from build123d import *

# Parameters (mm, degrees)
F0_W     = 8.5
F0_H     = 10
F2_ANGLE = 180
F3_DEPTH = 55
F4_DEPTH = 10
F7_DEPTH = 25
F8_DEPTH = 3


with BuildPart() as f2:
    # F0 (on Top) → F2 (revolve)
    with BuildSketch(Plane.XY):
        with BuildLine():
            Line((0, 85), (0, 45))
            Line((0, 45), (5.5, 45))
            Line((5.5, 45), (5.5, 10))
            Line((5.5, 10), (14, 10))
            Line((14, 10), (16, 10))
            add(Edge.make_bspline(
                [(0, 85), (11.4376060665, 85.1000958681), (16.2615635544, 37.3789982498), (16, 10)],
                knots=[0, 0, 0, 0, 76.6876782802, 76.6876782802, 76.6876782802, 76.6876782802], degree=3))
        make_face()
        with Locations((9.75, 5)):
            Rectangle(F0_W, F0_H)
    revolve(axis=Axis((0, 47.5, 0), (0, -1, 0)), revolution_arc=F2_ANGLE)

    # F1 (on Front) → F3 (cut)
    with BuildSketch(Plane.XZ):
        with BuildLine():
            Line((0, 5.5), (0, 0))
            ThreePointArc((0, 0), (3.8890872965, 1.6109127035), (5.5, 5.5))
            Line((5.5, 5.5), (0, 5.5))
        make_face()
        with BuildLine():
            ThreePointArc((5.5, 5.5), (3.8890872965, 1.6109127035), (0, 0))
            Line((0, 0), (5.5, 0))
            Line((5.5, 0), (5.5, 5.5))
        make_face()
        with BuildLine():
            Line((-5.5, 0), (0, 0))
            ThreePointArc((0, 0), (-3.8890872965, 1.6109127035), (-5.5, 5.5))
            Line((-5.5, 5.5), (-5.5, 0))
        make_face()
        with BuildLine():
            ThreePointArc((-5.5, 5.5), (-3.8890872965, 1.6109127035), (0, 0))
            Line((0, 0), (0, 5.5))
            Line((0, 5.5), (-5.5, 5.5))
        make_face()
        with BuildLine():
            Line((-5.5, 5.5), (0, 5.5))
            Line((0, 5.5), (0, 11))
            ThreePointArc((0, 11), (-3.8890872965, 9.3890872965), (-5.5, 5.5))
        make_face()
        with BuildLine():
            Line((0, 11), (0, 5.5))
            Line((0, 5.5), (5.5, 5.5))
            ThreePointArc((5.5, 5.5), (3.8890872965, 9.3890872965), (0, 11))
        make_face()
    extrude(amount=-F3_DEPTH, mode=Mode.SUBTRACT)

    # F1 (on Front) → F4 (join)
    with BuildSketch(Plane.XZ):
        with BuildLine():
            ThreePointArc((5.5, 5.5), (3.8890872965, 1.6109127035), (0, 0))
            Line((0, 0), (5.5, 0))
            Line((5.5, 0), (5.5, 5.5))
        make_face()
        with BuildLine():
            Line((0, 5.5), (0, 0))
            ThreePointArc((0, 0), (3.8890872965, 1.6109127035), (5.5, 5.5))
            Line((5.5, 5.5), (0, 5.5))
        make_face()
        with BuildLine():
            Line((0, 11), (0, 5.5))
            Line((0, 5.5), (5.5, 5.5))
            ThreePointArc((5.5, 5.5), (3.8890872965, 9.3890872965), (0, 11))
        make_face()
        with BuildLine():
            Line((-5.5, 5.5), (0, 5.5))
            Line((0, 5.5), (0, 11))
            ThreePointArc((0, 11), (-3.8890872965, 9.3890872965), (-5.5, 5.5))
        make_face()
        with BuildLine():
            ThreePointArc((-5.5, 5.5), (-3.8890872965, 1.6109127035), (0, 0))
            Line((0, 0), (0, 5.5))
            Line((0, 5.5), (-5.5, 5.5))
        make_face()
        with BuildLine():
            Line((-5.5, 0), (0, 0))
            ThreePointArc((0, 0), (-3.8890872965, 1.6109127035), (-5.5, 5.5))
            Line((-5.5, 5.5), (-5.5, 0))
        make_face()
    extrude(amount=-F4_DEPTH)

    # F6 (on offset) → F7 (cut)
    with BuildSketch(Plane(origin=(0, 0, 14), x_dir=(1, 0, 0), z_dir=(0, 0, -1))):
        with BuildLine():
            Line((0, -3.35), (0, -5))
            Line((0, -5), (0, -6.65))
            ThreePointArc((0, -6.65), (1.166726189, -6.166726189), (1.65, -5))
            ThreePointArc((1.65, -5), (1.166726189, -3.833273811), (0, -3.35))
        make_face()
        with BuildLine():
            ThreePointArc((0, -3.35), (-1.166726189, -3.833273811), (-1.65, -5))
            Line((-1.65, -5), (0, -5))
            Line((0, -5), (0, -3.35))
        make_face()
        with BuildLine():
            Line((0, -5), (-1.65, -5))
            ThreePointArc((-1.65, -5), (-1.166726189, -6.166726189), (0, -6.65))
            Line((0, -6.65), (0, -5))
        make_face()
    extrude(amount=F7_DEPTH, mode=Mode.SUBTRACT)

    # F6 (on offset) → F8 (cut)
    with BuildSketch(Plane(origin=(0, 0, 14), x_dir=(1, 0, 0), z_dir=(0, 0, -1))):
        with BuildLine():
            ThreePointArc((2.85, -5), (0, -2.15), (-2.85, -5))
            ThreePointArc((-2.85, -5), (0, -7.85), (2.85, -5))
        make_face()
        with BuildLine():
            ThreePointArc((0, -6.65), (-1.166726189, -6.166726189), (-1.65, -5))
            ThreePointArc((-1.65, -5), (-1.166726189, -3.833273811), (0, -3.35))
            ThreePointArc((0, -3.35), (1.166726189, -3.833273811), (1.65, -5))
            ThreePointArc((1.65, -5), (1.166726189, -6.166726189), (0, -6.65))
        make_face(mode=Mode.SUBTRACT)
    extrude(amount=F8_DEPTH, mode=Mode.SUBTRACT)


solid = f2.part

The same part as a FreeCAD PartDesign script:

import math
import FreeCAD as App
import Part
import Sketcher

V = App.Vector

doc = App.newDocument("Part")
body = doc.addObject("PartDesign::Body", "Body")

# Sketch on XY plane
sketch1 = body.newObject("Sketcher::SketchObject", "Sketch")
sketch1.AttachmentSupport = (doc.getObject("XY_Plane"), [""])
sketch1.MapMode = "FlatFace"
sketch1.addGeometry([
    Part.BSplineCurve([V(0, 85, 0), V(11.437606, 85.100096, 0), V(16.261564, 37.378998, 0), V(16, 10, 0)], [4, 4], [0, 76.68767828], False, 3, [1, 1, 1, 1], False),  # 0
    Part.LineSegment(V(0, 85, 0), V(0, 45, 0)),  # 1
    Part.LineSegment(V(0, 45, 0), V(5.5, 45, 0)),  # 2
    Part.LineSegment(V(5.5, 45, 0), V(5.5, 0, 0)),  # 3
    Part.LineSegment(V(5.5, 0, 0), V(14, 0, 0)),  # 4
    Part.LineSegment(V(14, 0, 0), V(14, 10, 0)),  # 5
    Part.LineSegment(V(14, 10, 0), V(16, 10, 0)),  # 6
], False)
sketch1.addConstraint([
    Sketcher.Constraint("Block", 0),
    Sketcher.Constraint("Coincident", 0, 1, 1, 1),
    Sketcher.Constraint("Coincident", 1, 2, 2, 1),
    Sketcher.Constraint("Coincident", 2, 2, 3, 1),
    Sketcher.Constraint("Coincident", 3, 2, 4, 1),
    Sketcher.Constraint("Coincident", 4, 2, 5, 1),
    Sketcher.Constraint("Coincident", 5, 2, 6, 1),
    Sketcher.Constraint("Coincident", 6, 2, 0, 2),
    Sketcher.Constraint("Vertical", 1),
    Sketcher.Constraint("Horizontal", 2),
    Sketcher.Constraint("Vertical", 3),
    Sketcher.Constraint("Horizontal", 4),
    Sketcher.Constraint("Vertical", 5),
    Sketcher.Constraint("Horizontal", 6),
    Sketcher.Constraint("PointOnObject", 3, 2, -1),
    Sketcher.Constraint("DistanceX", 6, 1, 6, 2, 2.0),
    Sketcher.Constraint("DistanceY", 1, 2, 1, 1, 40.0),
    Sketcher.Constraint("DistanceX", 2, 1, 2, 2, 5.5),
])
revolution = body.newObject("PartDesign::Revolution", "Revolution")
revolution.Profile = sketch1
revolution.ReferenceAxis = (sketch1, ["V_Axis"])
revolution.Angle = 180
revolution.Reversed = True

# Sketch on XZ plane
sketch2 = body.newObject("Sketcher::SketchObject", "Sketch001")
sketch2.AttachmentSupport = (doc.getObject("XZ_Plane"), [""])
sketch2.MapMode = "FlatFace"
sketch2.addGeometry([
    Part.LineSegment(V(6, 0, 0), V(6, 6, 0)),  # 0
    Part.ArcOfCircle(Part.Circle(V(0, 6, 0), V(0, 0, 1), 6), math.radians(0), math.radians(90)),  # 1
    Part.ArcOfCircle(Part.Circle(V(0, 6, 0), V(0, 0, 1), 6), math.radians(90), math.radians(180)),  # 2
    Part.LineSegment(V(-6, 6, 0), V(-6, 0, 0)),  # 3
    Part.LineSegment(V(-6, 0, 0), V(6, 0, 0)),  # 4
], False)
sketch2.addConstraint([
    Sketcher.Constraint("Tangent", 0, 2, 1, 1),
    Sketcher.Constraint("Tangent", 1, 2, 2, 1),
    Sketcher.Constraint("Tangent", 2, 2, 3, 1),
    Sketcher.Constraint("Coincident", 3, 2, 4, 1),
    Sketcher.Constraint("Coincident", 4, 2, 0, 1),
    Sketcher.Constraint("Vertical", 0),
    Sketcher.Constraint("Vertical", 3),
    Sketcher.Constraint("Horizontal", 4),
    Sketcher.Constraint("Equal", 1, 2),
    Sketcher.Constraint("Symmetric", 3, 2, 4, 2, -1, 1),
    Sketcher.Constraint("PointOnObject", 1, 2, -2),
    Sketcher.Constraint("Radius", 1, 5.5),
    Sketcher.Constraint("DistanceY", 0, 1, 0, 2, 5.5),
])
pocket1 = body.newObject("PartDesign::Pocket", "Pocket")
pocket1.Profile = sketch2
pocket1.Length = 55

# Sketch on XZ plane
sketch3 = body.newObject("Sketcher::SketchObject", "Sketch002")
sketch3.AttachmentSupport = (doc.getObject("XZ_Plane"), [""])
sketch3.MapMode = "FlatFace"
sketch3.addGeometry([
    Part.LineSegment(V(6, 0, 0), V(6, 6, 0)),  # 0
    Part.ArcOfCircle(Part.Circle(V(0, 6, 0), V(0, 0, 1), 6), math.radians(0), math.radians(90)),  # 1
    Part.ArcOfCircle(Part.Circle(V(0, 6, 0), V(0, 0, 1), 6), math.radians(90), math.radians(180)),  # 2
    Part.LineSegment(V(-6, 6, 0), V(-6, 0, 0)),  # 3
    Part.LineSegment(V(-6, 0, 0), V(6, 0, 0)),  # 4
], False)
sketch3.addConstraint([
    Sketcher.Constraint("Tangent", 0, 2, 1, 1),
    Sketcher.Constraint("Tangent", 1, 2, 2, 1),
    Sketcher.Constraint("Tangent", 2, 2, 3, 1),
    Sketcher.Constraint("Coincident", 3, 2, 4, 1),
    Sketcher.Constraint("Coincident", 4, 2, 0, 1),
    Sketcher.Constraint("Vertical", 0),
    Sketcher.Constraint("Vertical", 3),
    Sketcher.Constraint("Horizontal", 4),
    Sketcher.Constraint("Equal", 1, 2),
    Sketcher.Constraint("Symmetric", 3, 2, 4, 2, -1, 1),
    Sketcher.Constraint("PointOnObject", 1, 2, -2),
    Sketcher.Constraint("Radius", 1, 5.5),
    Sketcher.Constraint("DistanceY", 0, 1, 0, 2, 5.5),
])
pad1 = body.newObject("PartDesign::Pad", "Pad")
pad1.Profile = sketch3
pad1.Length = 10
pad1.Reversed = True

# Sketch on XY plane
sketch4 = body.newObject("Sketcher::SketchObject", "Sketch003")
sketch4.AttachmentSupport = (doc.getObject("XY_Plane"), [""])
sketch4.MapMode = "FlatFace"
sketch4.AttachmentOffset = App.Placement(V(0, 0, 14), App.Rotation())
sketch4.addGeometry([
    Part.ArcOfCircle(Part.Circle(V(0, 5, 0), V(0, 0, 1), 1.6), math.radians(0), math.radians(90)),
    Part.ArcOfCircle(Part.Circle(V(0, 5, 0), V(0, 0, 1), 1.6), math.radians(-90), math.radians(0)),
    Part.ArcOfCircle(Part.Circle(V(0, 5, 0), V(0, 0, 1), 1.6), math.radians(180), math.radians(270)),
    Part.ArcOfCircle(Part.Circle(V(0, 5, 0), V(0, 0, 1), 1.6), math.radians(90), math.radians(180)),
], False)
sketch4.addConstraint([
    Sketcher.Constraint("Tangent", 0, 1, 1, 2),
    Sketcher.Constraint("Tangent", 1, 1, 2, 2),
    Sketcher.Constraint("Tangent", 2, 1, 3, 2),
    Sketcher.Constraint("Tangent", 3, 1, 0, 2),
    Sketcher.Constraint("Equal", 0, 1),
    Sketcher.Constraint("Symmetric", 0, 1, 2, 1, -2),
    Sketcher.Constraint("PointOnObject", 1, 1, -2),
    Sketcher.Constraint("PointOnObject", 3, 1, -2),
    Sketcher.Constraint("Horizontal", 3, 3, 0, 1),
    Sketcher.Constraint("Radius", 0, 1.65),
    Sketcher.Constraint("DistanceY", -1, 1, 0, 3, 5.0),
])
pocket2 = body.newObject("PartDesign::Pocket", "Pocket001")
pocket2.Profile = sketch4
pocket2.Length = 25

# Sketch on XY plane
sketch5 = body.newObject("Sketcher::SketchObject", "Sketch004")
sketch5.AttachmentSupport = (doc.getObject("XY_Plane"), [""])
sketch5.MapMode = "FlatFace"
sketch5.AttachmentOffset = App.Placement(V(0, 0, 14), App.Rotation())
sketch5.addGeometry([
    Part.Circle(V(0, 5, 0), V(0, 0, 1), 2.9),  # 0
    Part.ArcOfCircle(Part.Circle(V(0, 5, 0), V(0, 0, 1), 1.6), math.radians(0), math.radians(90)),  # 1
    Part.ArcOfCircle(Part.Circle(V(0, 5, 0), V(0, 0, 1), 1.6), math.radians(90), math.radians(180)),  # 2
    Part.ArcOfCircle(Part.Circle(V(0, 5, 0), V(0, 0, 1), 1.6), math.radians(180), math.radians(270)),  # 3
    Part.ArcOfCircle(Part.Circle(V(0, 5, 0), V(0, 0, 1), 1.6), math.radians(-90), math.radians(0)),  # 4
], False)
sketch5.addConstraint([
    Sketcher.Constraint("Tangent", 1, 2, 2, 1),
    Sketcher.Constraint("Tangent", 2, 2, 3, 1),
    Sketcher.Constraint("Tangent", 3, 2, 4, 1),
    Sketcher.Constraint("Tangent", 4, 2, 1, 1),
    Sketcher.Constraint("Coincident", 1, 3, 0, 3),
    Sketcher.Constraint("Equal", 1, 2),
    Sketcher.Constraint("Symmetric", 2, 2, 4, 2, -2),
    Sketcher.Constraint("PointOnObject", 1, 2, -2),
    Sketcher.Constraint("PointOnObject", 3, 2, -2),
    Sketcher.Constraint("Horizontal", 4, 3, 2, 2),
    Sketcher.Constraint("Diameter", 0, 5.7),
    Sketcher.Constraint("Radius", 1, 1.65),
    Sketcher.Constraint("DistanceY", -1, 1, 0, 3, 5.0),
])
pocket3 = body.newObject("PartDesign::Pocket", "Pocket002")
pocket3.Profile = sketch5
pocket3.Length = 3

doc.recompute()
